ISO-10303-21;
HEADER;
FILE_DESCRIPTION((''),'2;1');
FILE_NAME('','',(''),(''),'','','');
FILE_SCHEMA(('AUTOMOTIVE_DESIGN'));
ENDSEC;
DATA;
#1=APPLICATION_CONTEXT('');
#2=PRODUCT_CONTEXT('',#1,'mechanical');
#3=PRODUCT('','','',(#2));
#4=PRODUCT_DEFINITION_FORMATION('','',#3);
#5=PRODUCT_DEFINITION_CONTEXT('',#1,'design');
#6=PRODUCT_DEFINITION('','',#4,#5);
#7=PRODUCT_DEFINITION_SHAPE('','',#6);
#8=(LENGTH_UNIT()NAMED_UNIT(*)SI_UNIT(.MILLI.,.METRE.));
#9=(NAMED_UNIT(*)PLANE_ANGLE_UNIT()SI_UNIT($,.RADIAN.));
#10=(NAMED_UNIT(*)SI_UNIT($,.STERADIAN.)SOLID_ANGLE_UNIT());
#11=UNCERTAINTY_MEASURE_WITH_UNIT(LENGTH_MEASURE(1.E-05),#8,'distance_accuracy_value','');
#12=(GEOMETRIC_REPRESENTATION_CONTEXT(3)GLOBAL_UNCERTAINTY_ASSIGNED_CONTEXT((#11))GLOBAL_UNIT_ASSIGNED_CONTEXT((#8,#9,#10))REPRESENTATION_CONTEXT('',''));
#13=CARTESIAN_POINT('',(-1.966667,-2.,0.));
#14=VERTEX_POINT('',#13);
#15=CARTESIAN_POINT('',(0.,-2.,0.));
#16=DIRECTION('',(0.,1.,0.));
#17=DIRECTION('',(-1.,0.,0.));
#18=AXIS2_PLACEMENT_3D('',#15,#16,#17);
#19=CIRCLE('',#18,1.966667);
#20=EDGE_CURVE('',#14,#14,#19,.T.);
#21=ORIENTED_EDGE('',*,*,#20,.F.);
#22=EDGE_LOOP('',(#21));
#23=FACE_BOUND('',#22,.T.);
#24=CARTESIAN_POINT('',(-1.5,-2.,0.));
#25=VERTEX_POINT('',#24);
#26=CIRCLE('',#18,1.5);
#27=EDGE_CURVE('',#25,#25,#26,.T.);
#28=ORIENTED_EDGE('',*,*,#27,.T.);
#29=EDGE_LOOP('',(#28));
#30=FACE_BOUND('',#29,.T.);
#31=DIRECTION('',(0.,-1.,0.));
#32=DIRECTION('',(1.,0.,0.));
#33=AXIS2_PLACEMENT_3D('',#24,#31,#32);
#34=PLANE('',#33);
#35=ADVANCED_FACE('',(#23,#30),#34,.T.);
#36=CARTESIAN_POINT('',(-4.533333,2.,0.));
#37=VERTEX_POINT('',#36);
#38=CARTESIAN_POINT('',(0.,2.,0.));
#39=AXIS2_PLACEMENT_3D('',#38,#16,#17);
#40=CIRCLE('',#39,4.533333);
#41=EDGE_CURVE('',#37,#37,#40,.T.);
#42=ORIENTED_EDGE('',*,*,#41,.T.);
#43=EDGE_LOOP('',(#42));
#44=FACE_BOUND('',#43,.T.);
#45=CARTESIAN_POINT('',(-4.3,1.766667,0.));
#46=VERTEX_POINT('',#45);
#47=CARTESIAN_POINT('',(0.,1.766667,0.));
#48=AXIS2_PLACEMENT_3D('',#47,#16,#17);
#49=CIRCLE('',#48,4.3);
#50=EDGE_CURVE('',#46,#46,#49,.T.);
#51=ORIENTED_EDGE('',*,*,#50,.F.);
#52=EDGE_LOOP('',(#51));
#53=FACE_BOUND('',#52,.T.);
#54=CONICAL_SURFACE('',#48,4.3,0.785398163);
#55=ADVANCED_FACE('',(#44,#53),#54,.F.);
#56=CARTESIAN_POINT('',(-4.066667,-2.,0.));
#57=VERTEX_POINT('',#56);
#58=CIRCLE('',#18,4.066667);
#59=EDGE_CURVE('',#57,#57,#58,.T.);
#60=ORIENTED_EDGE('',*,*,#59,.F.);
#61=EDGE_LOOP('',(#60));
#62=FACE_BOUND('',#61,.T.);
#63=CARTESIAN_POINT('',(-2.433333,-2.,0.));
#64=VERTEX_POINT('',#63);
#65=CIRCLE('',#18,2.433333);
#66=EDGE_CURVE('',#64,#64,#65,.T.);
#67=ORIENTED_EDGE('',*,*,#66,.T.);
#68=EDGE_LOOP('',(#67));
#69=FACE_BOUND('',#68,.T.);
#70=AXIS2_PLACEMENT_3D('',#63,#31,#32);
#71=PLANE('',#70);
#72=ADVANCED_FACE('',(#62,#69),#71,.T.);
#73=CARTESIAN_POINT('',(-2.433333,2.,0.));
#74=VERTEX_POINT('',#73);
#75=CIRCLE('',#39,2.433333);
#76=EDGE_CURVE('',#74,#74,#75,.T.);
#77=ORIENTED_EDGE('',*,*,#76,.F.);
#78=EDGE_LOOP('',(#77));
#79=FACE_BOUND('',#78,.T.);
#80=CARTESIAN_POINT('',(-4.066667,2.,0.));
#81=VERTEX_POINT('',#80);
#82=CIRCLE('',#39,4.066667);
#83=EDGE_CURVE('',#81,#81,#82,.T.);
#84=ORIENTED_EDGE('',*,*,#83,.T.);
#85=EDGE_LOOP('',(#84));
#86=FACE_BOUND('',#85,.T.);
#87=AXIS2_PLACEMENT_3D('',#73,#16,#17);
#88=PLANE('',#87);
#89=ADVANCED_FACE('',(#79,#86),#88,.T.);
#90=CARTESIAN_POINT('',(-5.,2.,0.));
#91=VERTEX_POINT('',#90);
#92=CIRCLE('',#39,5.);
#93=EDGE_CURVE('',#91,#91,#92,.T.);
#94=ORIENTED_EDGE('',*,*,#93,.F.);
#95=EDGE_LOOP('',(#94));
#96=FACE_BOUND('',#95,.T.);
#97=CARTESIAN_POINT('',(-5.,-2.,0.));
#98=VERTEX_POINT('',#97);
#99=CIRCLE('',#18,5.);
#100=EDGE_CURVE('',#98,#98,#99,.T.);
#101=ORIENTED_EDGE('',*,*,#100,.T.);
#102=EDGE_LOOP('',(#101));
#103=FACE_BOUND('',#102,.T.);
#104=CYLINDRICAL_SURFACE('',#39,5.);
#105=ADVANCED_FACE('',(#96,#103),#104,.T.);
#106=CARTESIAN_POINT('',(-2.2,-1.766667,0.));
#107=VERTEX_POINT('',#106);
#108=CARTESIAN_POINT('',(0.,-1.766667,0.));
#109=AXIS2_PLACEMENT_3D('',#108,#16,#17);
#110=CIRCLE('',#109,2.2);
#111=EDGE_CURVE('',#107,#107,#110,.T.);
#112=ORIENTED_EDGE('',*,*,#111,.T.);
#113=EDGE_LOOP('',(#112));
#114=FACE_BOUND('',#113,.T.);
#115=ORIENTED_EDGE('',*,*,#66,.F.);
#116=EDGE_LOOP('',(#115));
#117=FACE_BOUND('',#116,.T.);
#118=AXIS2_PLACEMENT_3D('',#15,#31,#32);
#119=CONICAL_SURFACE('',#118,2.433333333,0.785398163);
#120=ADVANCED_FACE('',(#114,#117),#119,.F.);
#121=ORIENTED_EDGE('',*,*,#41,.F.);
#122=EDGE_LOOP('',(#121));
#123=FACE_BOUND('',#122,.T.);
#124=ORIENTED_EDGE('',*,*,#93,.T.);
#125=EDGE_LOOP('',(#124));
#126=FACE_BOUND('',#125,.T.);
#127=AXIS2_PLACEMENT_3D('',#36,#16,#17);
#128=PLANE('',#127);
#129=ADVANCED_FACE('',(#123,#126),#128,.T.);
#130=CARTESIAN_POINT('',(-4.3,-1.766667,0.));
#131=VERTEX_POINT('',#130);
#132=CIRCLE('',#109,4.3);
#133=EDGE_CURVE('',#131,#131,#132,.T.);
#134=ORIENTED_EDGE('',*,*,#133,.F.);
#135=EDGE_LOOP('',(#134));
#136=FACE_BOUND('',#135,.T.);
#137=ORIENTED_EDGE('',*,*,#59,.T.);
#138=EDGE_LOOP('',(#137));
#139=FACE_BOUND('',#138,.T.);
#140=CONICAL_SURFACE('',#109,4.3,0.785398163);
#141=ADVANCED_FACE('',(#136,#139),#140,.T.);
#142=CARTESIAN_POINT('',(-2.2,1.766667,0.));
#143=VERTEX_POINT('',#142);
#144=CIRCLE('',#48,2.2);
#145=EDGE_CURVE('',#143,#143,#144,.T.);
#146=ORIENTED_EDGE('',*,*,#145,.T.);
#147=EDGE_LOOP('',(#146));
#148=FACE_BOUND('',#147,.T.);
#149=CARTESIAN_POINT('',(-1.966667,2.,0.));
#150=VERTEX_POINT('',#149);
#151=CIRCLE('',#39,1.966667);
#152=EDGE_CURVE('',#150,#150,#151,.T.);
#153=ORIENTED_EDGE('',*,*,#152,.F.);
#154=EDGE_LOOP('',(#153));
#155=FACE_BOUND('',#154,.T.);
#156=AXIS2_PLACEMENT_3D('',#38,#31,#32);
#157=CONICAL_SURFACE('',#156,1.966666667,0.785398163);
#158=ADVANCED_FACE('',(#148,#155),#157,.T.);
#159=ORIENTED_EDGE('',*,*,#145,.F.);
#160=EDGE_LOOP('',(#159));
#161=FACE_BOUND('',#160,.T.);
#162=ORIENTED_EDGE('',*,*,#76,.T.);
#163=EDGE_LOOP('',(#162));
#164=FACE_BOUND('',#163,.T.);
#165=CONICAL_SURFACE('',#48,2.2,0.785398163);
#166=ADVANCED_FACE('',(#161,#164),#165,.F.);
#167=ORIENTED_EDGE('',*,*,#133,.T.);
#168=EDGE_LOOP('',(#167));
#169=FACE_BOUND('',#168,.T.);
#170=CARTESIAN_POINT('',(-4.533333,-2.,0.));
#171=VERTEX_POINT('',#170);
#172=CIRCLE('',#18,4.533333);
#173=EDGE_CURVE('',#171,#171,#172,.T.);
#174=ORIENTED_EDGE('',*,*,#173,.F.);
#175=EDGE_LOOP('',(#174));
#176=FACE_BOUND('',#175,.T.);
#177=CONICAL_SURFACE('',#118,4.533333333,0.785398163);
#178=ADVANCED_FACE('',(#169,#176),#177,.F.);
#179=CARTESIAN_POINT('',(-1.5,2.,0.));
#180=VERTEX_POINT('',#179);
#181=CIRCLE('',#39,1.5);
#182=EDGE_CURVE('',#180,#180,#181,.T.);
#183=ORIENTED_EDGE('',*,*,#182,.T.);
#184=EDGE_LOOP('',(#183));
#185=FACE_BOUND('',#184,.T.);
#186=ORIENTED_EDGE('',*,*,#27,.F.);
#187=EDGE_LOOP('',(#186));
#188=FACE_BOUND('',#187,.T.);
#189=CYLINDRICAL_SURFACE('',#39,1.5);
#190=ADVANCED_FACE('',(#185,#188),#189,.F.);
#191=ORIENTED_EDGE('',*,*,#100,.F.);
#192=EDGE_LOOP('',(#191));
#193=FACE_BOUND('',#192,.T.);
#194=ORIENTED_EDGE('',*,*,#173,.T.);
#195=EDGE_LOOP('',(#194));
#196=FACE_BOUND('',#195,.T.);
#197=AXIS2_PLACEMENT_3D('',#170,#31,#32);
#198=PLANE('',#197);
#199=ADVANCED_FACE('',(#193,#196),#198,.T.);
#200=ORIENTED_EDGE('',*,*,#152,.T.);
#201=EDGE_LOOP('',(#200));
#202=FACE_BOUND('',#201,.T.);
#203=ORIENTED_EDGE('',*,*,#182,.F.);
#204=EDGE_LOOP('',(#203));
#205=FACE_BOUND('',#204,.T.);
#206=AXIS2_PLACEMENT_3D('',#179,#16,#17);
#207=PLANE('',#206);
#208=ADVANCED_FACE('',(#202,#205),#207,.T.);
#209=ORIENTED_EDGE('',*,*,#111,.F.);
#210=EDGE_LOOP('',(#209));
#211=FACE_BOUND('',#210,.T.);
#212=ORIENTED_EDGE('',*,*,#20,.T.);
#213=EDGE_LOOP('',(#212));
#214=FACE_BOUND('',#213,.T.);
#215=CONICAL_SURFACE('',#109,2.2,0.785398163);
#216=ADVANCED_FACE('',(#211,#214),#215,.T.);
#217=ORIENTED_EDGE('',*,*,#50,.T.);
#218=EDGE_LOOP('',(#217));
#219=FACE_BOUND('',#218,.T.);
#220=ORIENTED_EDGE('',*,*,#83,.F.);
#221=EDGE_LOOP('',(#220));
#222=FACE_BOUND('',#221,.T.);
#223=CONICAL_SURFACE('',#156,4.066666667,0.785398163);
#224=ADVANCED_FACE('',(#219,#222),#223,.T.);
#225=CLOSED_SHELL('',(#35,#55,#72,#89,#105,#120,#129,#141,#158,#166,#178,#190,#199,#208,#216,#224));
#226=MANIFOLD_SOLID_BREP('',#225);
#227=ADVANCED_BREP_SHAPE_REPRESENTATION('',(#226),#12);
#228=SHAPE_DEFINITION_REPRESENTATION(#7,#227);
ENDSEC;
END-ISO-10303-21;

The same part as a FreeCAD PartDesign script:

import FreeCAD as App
import Part
import Sketcher


def add_polygon(sketch, points):
    """Adds a closed chain of lines whose ends are joined by coincident constraints."""
    first, n = sketch.GeometryCount, len(points)
    for a, b in zip(points, points[1:] + points[:1]):
        sketch.addGeometry(Part.LineSegment(App.Vector(*a, 0), App.Vector(*b, 0)), False)
    for i in range(n):
        sketch.addConstraint(Sketcher.Constraint("Coincident", first + i, 2, first + (i + 1) % n, 1))

doc = App.newDocument("Part")
body = doc.addObject("PartDesign::Body", "Body")

# Sketch on XY plane
sketch1 = doc.addObject("Sketcher::SketchObject", "Sketch")
body.addObject(sketch1)
sketch1.AttachmentSupport = (doc.XY_Plane, [""])
sketch1.MapMode = "FlatFace"
add_polygon(sketch1, [(-1.5, 2), (-1.97, 2), (-2.2, 1.77), (-2.43, 2), (-4.07, 2), (-4.3, 1.77), (-4.53, 2), (-5, 2), (-5, -2), (-4.53, -2), (-4.3, -1.77), (-4.07, -2), (-2.43, -2), (-2.2, -1.77), (-1.97, -2), (-1.5, -2)])  # lines 0-15
sketch1.addConstraint([
    Sketcher.Constraint("Horizontal", 0),
    Sketcher.Constraint("Horizontal", 3),
    Sketcher.Constraint("Horizontal", 6),
    Sketcher.Constraint("Vertical", 7),
    Sketcher.Constraint("Horizontal", 8),
    Sketcher.Constraint("Horizontal", 11),
    Sketcher.Constraint("Horizontal", 14),
    Sketcher.Constraint("Vertical", 15),
    Sketcher.Constraint("Symmetric", 5, 2, 8, 2, -1),
    Sketcher.Constraint("Symmetric", 4, 2, 9, 2, -1),
    Sketcher.Constraint("Symmetric", 3, 2, 10, 2, -1),
    Sketcher.Constraint("Symmetric", 1, 2, 12, 2, -1),
    Sketcher.Constraint("Symmetric", 0, 2, 13, 2, -1),
    Sketcher.Constraint("Perpendicular", 1, 2),
    Sketcher.Constraint("Perpendicular", 2, 4),
    Sketcher.Constraint("Perpendicular", 4, 5),
    Sketcher.Constraint("Perpendicular", 5, 9),
    Sketcher.Constraint("Perpendicular", 10, 12),
    Sketcher.Constraint("Horizontal", 0, 2, 2, 2),
    Sketcher.Constraint("Horizontal", 1, 2, 4, 2),
    Sketcher.Constraint("Horizontal", 3, 2, 5, 2),
    Sketcher.Constraint("Equal", 0, 6),
    Sketcher.Constraint("DistanceY", 7, 2, 7, 1, 4.0),
    Sketcher.Constraint("DistanceX", 6, 2, -1, 1, 5.0),
    Sketcher.Constraint("DistanceX", 1, 2, -1, 1, 2.2),
    Sketcher.Constraint("DistanceX", 4, 2, -1, 1, 4.3),
    Sketcher.Constraint("DistanceX", 0, 2, 0, 1, 0.466667),
])
revolution = doc.addObject("PartDesign::Revolution", "Revolution")
body.addObject(revolution)
revolution.Profile = sketch1
revolution.ReferenceAxis = (sketch1, ["V_Axis"])
revolution.Angle = 360

doc.recompute()
